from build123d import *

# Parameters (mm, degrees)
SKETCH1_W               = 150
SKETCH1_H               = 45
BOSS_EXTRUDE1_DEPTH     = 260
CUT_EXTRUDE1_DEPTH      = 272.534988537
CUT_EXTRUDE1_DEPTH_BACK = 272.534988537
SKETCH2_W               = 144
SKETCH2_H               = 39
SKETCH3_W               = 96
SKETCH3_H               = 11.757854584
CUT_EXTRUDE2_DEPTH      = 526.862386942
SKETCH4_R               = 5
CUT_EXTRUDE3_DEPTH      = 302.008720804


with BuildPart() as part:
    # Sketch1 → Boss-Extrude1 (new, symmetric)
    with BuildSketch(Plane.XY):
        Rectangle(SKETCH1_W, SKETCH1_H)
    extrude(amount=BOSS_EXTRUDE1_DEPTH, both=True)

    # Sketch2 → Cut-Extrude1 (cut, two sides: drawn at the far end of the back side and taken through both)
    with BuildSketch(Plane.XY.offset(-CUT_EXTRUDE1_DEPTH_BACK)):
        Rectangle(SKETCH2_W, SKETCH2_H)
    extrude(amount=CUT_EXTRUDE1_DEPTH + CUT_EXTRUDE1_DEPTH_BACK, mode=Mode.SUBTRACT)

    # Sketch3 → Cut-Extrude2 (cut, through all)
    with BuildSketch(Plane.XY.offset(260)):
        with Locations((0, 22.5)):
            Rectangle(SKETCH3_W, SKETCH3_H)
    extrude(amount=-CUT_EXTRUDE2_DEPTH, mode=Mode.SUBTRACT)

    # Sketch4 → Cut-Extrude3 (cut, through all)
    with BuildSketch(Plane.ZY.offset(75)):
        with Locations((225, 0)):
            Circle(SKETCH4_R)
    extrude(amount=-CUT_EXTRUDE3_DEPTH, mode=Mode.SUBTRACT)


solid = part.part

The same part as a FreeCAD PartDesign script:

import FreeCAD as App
import Part
import Sketcher
from FreeCAD import Vector


def add_polygon(sketch, points):
    """Adds a closed chain of lines whose ends are joined by coincident constraints."""
    first, n = sketch.GeometryCount, len(points)
    for a, b in zip(points, points[1:] + points[:1]):
        sketch.addGeometry(Part.LineSegment(App.Vector(*a, 0), App.Vector(*b, 0)), False)
    for i in range(n):
        sketch.addConstraint(Sketcher.Constraint("Coincident", first + i, 2, first + (i + 1) % n, 1))

doc = App.newDocument("Part")
body = doc.addObject("PartDesign::Body", "Body")

sketch1 = body.newObject("Sketcher::SketchObject", "Sketch")
sketch1.AttachmentSupport = (doc.getObject("XY_Plane"), [""])
sketch1.MapMode = "FlatFace"
add_polygon(sketch1, [(-75, 22), (-75, -22), (75, -22), (75, 22)])
sketch1.addConstraint(Sketcher.Constraint("Vertical", 0))
sketch1.addConstraint(Sketcher.Constraint("Horizontal", 1))
sketch1.addConstraint(Sketcher.Constraint("Vertical", 2))
sketch1.addConstraint(Sketcher.Constraint("Horizontal", 3))
sketch1.addConstraint(Sketcher.Constraint("Symmetric", 0, 2, 2, 2, -1, 1))
sketch1.addConstraint(Sketcher.Constraint("DistanceX", 1, 1, 1, 2, 150.0))
sketch1.addConstraint(Sketcher.Constraint("DistanceY", 0, 2, 0, 1, 45.0))
pad1 = body.newObject("PartDesign::Pad", "Pad")
pad1.Profile = sketch1
pad1.Length = 520
pad1.Midplane = True

sketch2 = body.newObject("Sketcher::SketchObject", "Sketch001")
sketch2.AttachmentSupport = (doc.getObject("XY_Plane"), [""])
sketch2.MapMode = "FlatFace"
add_polygon(sketch2, [(-72, 20), (-72, -20), (72, -20), (72, 20)])
sketch2.addConstraint(Sketcher.Constraint("Vertical", 0))
sketch2.addConstraint(Sketcher.Constraint("Horizontal", 1))
sketch2.addConstraint(Sketcher.Constraint("Vertical", 2))
sketch2.addConstraint(Sketcher.Constraint("Horizontal", 3))
sketch2.addConstraint(Sketcher.Constraint("Symmetric", 0, 2, 2, 2, -1, 1))
sketch2.addConstraint(Sketcher.Constraint("DistanceX", 1, 1, 1, 2, 144.0))
sketch2.addConstraint(Sketcher.Constraint("DistanceY", 0, 2, 0, 1, 39.0))
pocket1 = body.newObject("PartDesign::Pocket", "Pocket")
pocket1.Profile = sketch2
pocket1.Type = "ThroughAll"
pocket1.Midplane = True

sketch3 = body.newObject("Sketcher::SketchObject", "Sketch002")
sketch3.AttachmentSupport = (doc.getObject("XY_Plane"), [""])
sketch3.MapMode = "FlatFace"
sketch3.AttachmentOffset = App.Placement(Vector(0, 0, 260), App.Rotation())
add_polygon(sketch3, [(-48, 28), (-48, 17), (48, 17), (48, 28)])
sketch3.addConstraint(Sketcher.Constraint("Vertical", 0))
sketch3.addConstraint(Sketcher.Constraint("Horizontal", 1))
sketch3.addConstraint(Sketcher.Constraint("Vertical", 2))
sketch3.addConstraint(Sketcher.Constraint("Horizontal", 3))
sketch3.addConstraint(Sketcher.Constraint("DistanceX", 1, 1, 1, 2, 96.0))
sketch3.addConstraint(Sketcher.Constraint("DistanceX", 0, 2, -1, 1, 48.0))
sketch3.addConstraint(Sketcher.Constraint("DistanceY", 0, 2, 0, 1, 11.757855))
sketch3.addConstraint(Sketcher.Constraint("DistanceY", -1, 1, 0, 2, 16.621073))
pocket2 = body.newObject("PartDesign::Pocket", "Pocket001")
pocket2.Profile = sketch3
pocket2.Type = "ThroughAll"

sketch4 = body.newObject("Sketcher::SketchObject", "Sketch003")
sketch4.AttachmentSupport = (doc.getObject("YZ_Plane"), [""])
sketch4.MapMode = "FlatFace"
sketch4.AttachmentOffset = App.Placement(Vector(0, 0, -75), App.Rotation())
sketch4.addGeometry(Part.Circle(Vector(0, 225, 0), Vector(0, 0, 1), 5), False)
sketch4.addConstraint(Sketcher.Constraint("PointOnObject", 0, 3, -2))
sketch4.addConstraint(Sketcher.Constraint("Diameter", 0, 10.0))
sketch4.addConstraint(Sketcher.Constraint("DistanceY", -1, 1, 0, 3, 225.0))
pocket3 = body.newObject("PartDesign::Pocket", "Pocket002")
pocket3.Profile = sketch4
pocket3.Type = "ThroughAll"
pocket3.Reversed = True

doc.recompute()
